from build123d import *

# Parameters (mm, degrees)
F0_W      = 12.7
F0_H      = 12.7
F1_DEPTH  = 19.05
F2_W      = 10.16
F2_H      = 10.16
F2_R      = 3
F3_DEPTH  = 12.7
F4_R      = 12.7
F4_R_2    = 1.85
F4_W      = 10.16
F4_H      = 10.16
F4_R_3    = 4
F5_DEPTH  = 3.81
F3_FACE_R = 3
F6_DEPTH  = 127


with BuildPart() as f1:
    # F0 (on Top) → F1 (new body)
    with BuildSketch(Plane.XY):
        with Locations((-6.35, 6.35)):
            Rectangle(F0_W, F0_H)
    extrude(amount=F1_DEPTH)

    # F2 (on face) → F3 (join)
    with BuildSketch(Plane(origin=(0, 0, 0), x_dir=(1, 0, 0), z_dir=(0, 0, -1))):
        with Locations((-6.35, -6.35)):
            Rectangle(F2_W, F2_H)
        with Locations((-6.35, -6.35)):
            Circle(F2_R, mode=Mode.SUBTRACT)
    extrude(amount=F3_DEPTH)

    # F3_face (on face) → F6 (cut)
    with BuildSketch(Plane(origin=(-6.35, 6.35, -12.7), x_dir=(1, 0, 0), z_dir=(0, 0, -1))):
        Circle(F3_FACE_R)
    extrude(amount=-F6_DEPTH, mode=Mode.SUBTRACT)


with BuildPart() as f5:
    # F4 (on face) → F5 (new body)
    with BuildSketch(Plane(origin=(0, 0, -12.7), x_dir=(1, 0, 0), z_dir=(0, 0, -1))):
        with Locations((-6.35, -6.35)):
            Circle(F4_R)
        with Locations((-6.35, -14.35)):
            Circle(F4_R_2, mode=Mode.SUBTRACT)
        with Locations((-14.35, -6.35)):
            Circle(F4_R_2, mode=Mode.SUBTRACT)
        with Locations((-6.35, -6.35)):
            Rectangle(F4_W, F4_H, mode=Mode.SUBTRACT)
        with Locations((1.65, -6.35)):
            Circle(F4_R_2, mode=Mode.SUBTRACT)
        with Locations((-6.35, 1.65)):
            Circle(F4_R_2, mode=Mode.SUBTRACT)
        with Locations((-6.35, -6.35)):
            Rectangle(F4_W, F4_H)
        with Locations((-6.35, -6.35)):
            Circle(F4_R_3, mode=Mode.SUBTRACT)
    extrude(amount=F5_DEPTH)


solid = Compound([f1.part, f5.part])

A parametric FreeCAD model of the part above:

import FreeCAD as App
import Part
import Sketcher

V = App.Vector
Q = App.Units.Quantity


def add_polygon(sketch, points):
    """Adds a closed chain of lines whose ends are joined by coincident constraints."""
    first, n = sketch.GeometryCount, len(points)
    for a, b in zip(points, points[1:] + points[:1]):
        sketch.addGeometry(Part.LineSegment(App.Vector(*a, 0), App.Vector(*b, 0)), False)
    for i in range(n):
        sketch.addConstraint(Sketcher.Constraint("Coincident", first + i, 2, first + (i + 1) % n, 1))

doc = App.newDocument("Part")
body = doc.addObject("PartDesign::Body", "Body")

sketch1 = doc.addObject("Sketcher::SketchObject", "Sketch")
body.addObject(sketch1)
sketch1.AttachmentSupport = (doc.XY_Plane, [""])
sketch1.MapMode = "FlatFace"
add_polygon(sketch1, [(-13, 13), (-13, 0), (0, 0), (0, 13)])
sketch1.addConstraint(Sketcher.Constraint("Vertical", 0))
sketch1.addConstraint(Sketcher.Constraint("Horizontal", 1))
sketch1.addConstraint(Sketcher.Constraint("Vertical", 2))
sketch1.addConstraint(Sketcher.Constraint("Horizontal", 3))
sketch1.addConstraint(Sketcher.Constraint("Coincident", 1, 2, -1, 1))
sketch1.addConstraint(Sketcher.Constraint("Equal", 3, 0))
sketch1.addConstraint(Sketcher.Constraint("DistanceX", 1, 1, 1, 2, Q("0.5 in")))
pad1 = doc.addObject("PartDesign::Pad", "Pad")
body.addObject(pad1)
pad1.Profile = sketch1
pad1.Length = Q("0.75 in")

sketch2 = doc.addObject("Sketcher::SketchObject", "Sketch001")
body.addObject(sketch2)
sketch2.AttachmentSupport = (doc.XY_Plane, [""])
sketch2.MapMode = "FlatFace"
add_polygon(sketch2, [(-11.4, 1.3), (-11.4, 11.4), (-1.3, 11.4), (-1.3, 1.3)])
sketch2.addGeometry(Part.Circle(V(-6.3, 6.3, 0), V(0, 0, 1), 3), False)
sketch2.addConstraint(Sketcher.Constraint("Vertical", 0))
sketch2.addConstraint(Sketcher.Constraint("Horizontal", 1))
sketch2.addConstraint(Sketcher.Constraint("Vertical", 2))
sketch2.addConstraint(Sketcher.Constraint("Horizontal", 3))
sketch2.addConstraint(Sketcher.Constraint("Equal", 3, 0))
sketch2.addConstraint(Sketcher.Constraint("DistanceX", 1, 1, 1, 2, Q("0.4 in")))
sketch2.addConstraint(Sketcher.Constraint("DistanceX", 0, 2, 4, 3, Q("0.2 in")))
sketch2.addConstraint(Sketcher.Constraint("DistanceY", 4, 3, 0, 2, Q("0.2 in")))
sketch2.addConstraint(Sketcher.Constraint("Diameter", 4, Q("6 mm")))
sketch2.addConstraint(Sketcher.Constraint("DistanceX", 4, 3, -1, 1, Q("0.25 in")))
sketch2.addConstraint(Sketcher.Constraint("DistanceY", -1, 1, 4, 3, Q("0.25 in")))
pad2 = doc.addObject("PartDesign::Pad", "Pad001")
body.addObject(pad2)
pad2.Profile = sketch2
pad2.Length = Q("0.5 in")
pad2.Reversed = True

sketch3 = doc.addObject("Sketcher::SketchObject", "Sketch002")
body.addObject(sketch3)
sketch3.AttachmentSupport = (doc.XY_Plane, [""])
sketch3.MapMode = "FlatFace"
sketch3.AttachmentOffset = App.Placement(V(0, 0, -0.5 * 25.4), App.Rotation())
sketch3.addGeometry(Part.Circle(V(-6.3, 6.3, 0), V(0, 0, 1), 3), False)
sketch3.addConstraint(Sketcher.Constraint("Diameter", 0, Q("6 mm")))
sketch3.addConstraint(Sketcher.Constraint("DistanceX", 0, 3, -1, 1, Q("0.25 in")))
sketch3.addConstraint(Sketcher.Constraint("DistanceY", -1, 1, 0, 3, Q("0.25 in")))
pocket1 = doc.addObject("PartDesign::Pocket", "Pocket")
body.addObject(pocket1)
pocket1.Profile = sketch3
pocket1.Length = Q("5 in")
pocket1.Reversed = True
body2 = doc.addObject("PartDesign::Body", "Body001")

sketch4 = doc.addObject("Sketcher::SketchObject", "Sketch003")
body2.addObject(sketch4)
sketch4.AttachmentSupport = (doc.getObject("XY_Plane001"), [""])
sketch4.MapMode = "FlatFace"
sketch4.AttachmentOffset = App.Placement(V(0, 0, -0.5 * 25.4), App.Rotation())
sketch4.addGeometry(Part.Circle(V(-6.3, 6.3, 0), V(0, 0, 1), 12.7), False)
sketch4.addGeometry(Part.Circle(V(-6.3, 14.3, 0), V(0, 0, 1), 1.9), False)
sketch4.addGeometry(Part.Circle(V(-14.3, 6.3, 0), V(0, 0, 1), 1.9), False)
sketch4.addGeometry(Part.Circle(V(-6.3, 6.3, 0), V(0, 0, 1), 4), False)
sketch4.addGeometry(Part.Circle(V(1.6, 6.3, 0), V(0, 0, 1), 1.9), False)
sketch4.addGeometry(Part.Circle(V(-6.3, -1.6, 0), V(0, 0, 1), 1.9), False)
sketch4.addConstraint(Sketcher.Constraint("Coincident", 3, 3, 0, 3))
sketch4.addConstraint(Sketcher.Constraint("Equal", 1, 2))
sketch4.addConstraint(Sketcher.Constraint("Equal", 2, 4))
sketch4.addConstraint(Sketcher.Constraint("Equal", 4, 5))
sketch4.addConstraint(Sketcher.Constraint("Horizontal", 0, 3, 2, 3))
sketch4.addConstraint(Sketcher.Constraint("Horizontal", 3, 3, 4, 3))
sketch4.addConstraint(Sketcher.Constraint("Vertical", 0, 3, 1, 3))
sketch4.addConstraint(Sketcher.Constraint("Vertical", 3, 3, 5, 3))
sketch4.addConstraint(Sketcher.Constraint("Diameter", 0, Q("1 in")))
sketch4.addConstraint(Sketcher.Constraint("Diameter", 1, Q("3.7 mm")))
sketch4.addConstraint(Sketcher.Constraint("Diameter", 3, Q("8 mm")))
sketch4.addConstraint(Sketcher.Constraint("DistanceX", 0, 3, -1, 1, Q("0.25 in")))
sketch4.addConstraint(Sketcher.Constraint("DistanceY", -1, 1, 0, 3, Q("0.25 in")))
sketch4.addConstraint(Sketcher.Constraint("DistanceY", -1, 1, 1, 3, Q("14.35 mm")))
sketch4.addConstraint(Sketcher.Constraint("DistanceX", 2, 3, -1, 1, Q("14.35 mm")))
sketch4.addConstraint(Sketcher.Constraint("DistanceX", -1, 1, 4, 3, Q("1.65 mm")))
sketch4.addConstraint(Sketcher.Constraint("DistanceY", 5, 3, -1, 1, Q("1.65 mm")))
pad3 = doc.addObject("PartDesign::Pad", "Pad002")
body2.addObject(pad3)
pad3.Profile = sketch4
pad3.Length = Q("0.15 in")
pad3.Reversed = True

doc.recompute()
